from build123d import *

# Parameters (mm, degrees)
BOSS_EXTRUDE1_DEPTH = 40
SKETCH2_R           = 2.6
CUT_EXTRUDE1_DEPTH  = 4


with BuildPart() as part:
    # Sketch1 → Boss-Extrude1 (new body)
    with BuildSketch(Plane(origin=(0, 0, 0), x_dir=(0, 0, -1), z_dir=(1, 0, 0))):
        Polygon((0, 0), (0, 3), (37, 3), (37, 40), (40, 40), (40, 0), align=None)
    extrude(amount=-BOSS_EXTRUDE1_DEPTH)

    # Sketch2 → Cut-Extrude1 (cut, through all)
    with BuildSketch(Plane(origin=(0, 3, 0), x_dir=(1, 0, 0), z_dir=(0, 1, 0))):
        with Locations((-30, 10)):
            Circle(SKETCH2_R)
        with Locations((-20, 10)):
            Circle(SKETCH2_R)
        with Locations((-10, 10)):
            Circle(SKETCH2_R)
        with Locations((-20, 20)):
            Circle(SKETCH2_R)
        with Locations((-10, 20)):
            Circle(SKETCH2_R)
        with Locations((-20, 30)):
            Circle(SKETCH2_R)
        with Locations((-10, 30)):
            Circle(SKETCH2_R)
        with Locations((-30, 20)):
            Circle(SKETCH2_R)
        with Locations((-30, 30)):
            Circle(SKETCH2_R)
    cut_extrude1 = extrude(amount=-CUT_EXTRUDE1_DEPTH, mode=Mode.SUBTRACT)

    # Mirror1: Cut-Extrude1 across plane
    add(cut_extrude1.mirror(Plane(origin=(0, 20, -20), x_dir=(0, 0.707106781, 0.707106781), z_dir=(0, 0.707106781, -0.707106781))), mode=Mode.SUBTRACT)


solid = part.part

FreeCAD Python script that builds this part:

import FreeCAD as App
import Part
import Sketcher

V = App.Vector
Q = App.Units.Quantity

doc = App.newDocument("Part")
body = doc.addObject("PartDesign::Body", "Body")

# Sketch on YZ plane
sketch1 = body.newObject("Sketcher::SketchObject", "Sketch")
sketch1.AttachmentSupport = (doc.getObject("YZ_Plane"), [""])
sketch1.MapMode = "FlatFace"
sketch1.addGeometry([
    Part.LineSegment(V(3, 0, 0), V(0, 0, 0)),  # 0
    Part.LineSegment(V(0, 0, 0), V(0, -40, 0)),  # 1
    Part.LineSegment(V(0, -40, 0), V(40, -40, 0)),  # 2
    Part.LineSegment(V(40, -40, 0), V(40, -37, 0)),  # 3
    Part.LineSegment(V(40, -37, 0), V(3, -37, 0)),  # 4
    Part.LineSegment(V(3, -37, 0), V(3, 0, 0)),  # 5
], False)
sketch1.addConstraint([
    Sketcher.Constraint("Coincident", 0, 2, 1, 1),
    Sketcher.Constraint("Coincident", 1, 2, 2, 1),
    Sketcher.Constraint("Coincident", 2, 2, 3, 1),
    Sketcher.Constraint("Coincident", 3, 2, 4, 1),
    Sketcher.Constraint("Coincident", 4, 2, 5, 1),
    Sketcher.Constraint("Coincident", 5, 2, 0, 1),
    Sketcher.Constraint("Horizontal", 0),
    Sketcher.Constraint("Vertical", 1),
    Sketcher.Constraint("Horizontal", 2),
    Sketcher.Constraint("Vertical", 3),
    Sketcher.Constraint("Horizontal", 4),
    Sketcher.Constraint("Vertical", 5),
    Sketcher.Constraint("Coincident", 0, 2, -1, 1),
    Sketcher.Constraint("Equal", 2, 1),
    Sketcher.Constraint("Equal", 0, 3),
    Sketcher.Constraint("DistanceX", 0, 2, 0, 1, Q("3 mm")),
    Sketcher.Constraint("DistanceX", 2, 1, 2, 2, Q("40 mm")),
])
pad1 = body.newObject("PartDesign::Pad", "Pad")
pad1.Profile = sketch1
pad1.Length = 40
pad1.Reversed = True

# Sketch on XZ plane
sketch2 = body.newObject("Sketcher::SketchObject", "Sketch001")
sketch2.AttachmentSupport = (doc.getObject("XZ_Plane"), [""])
sketch2.MapMode = "FlatFace"
sketch2.AttachmentOffset = App.Placement(V(0, 0, -3), App.Rotation())
sketch2.addGeometry([
    Part.Circle(V(-30, -10, 0), V(0, 0, 1), 2.6),  # 0
    Part.Circle(V(-20, -10, 0), V(0, 0, 1), 2.6),  # 1
    Part.Circle(V(-10, -10, 0), V(0, 0, 1), 2.6),  # 2
    Part.Circle(V(-20, -20, 0), V(0, 0, 1), 2.6),  # 3
    Part.Circle(V(-10, -20, 0), V(0, 0, 1), 2.6),  # 4
    Part.Circle(V(-20, -30, 0), V(0, 0, 1), 2.6),  # 5
    Part.Circle(V(-10, -30, 0), V(0, 0, 1), 2.6),  # 6
    Part.Circle(V(-30, -20, 0), V(0, 0, 1), 2.6),  # 7
    Part.Circle(V(-30, -30, 0), V(0, 0, 1), 2.6),  # 8
], False)
sketch2.addConstraint([
    Sketcher.Constraint("Equal", 0, 1),
    Sketcher.Constraint("Equal", 1, 2),
    Sketcher.Constraint("Equal", 2, 3),
    Sketcher.Constraint("Equal", 3, 4),
    Sketcher.Constraint("Equal", 4, 5),
    Sketcher.Constraint("Equal", 5, 6),
    Sketcher.Constraint("Equal", 6, 7),
    Sketcher.Constraint("Equal", 7, 8),
    Sketcher.Constraint("Horizontal", 0, 3, 1, 3),
    Sketcher.Constraint("Horizontal", 1, 3, 2, 3),
    Sketcher.Constraint("Horizontal", 3, 3, 4, 3),
    Sketcher.Constraint("Horizontal", 5, 3, 6, 3),
    Sketcher.Constraint("Horizontal", 4, 3, 7, 3),
    Sketcher.Constraint("Horizontal", 6, 3, 8, 3),
    Sketcher.Constraint("Vertical", 1, 3, 3, 3),
    Sketcher.Constraint("Vertical", 2, 3, 4, 3),
    Sketcher.Constraint("Vertical", 3, 3, 5, 3),
    Sketcher.Constraint("Vertical", 4, 3, 6, 3),
    Sketcher.Constraint("Vertical", 0, 3, 7, 3),
    Sketcher.Constraint("Vertical", 7, 3, 8, 3),
    Sketcher.Constraint("Diameter", 0, Q("5.2 mm")),
    Sketcher.Constraint("DistanceX", 0, 3, -1, 1, Q("30 mm")),
    Sketcher.Constraint("DistanceY", 0, 3, -1, 1, Q("10 mm")),
    Sketcher.Constraint("DistanceX", 1, 3, -1, 1, Q("20 mm")),
    Sketcher.Constraint("DistanceX", 2, 3, -1, 1, Q("10 mm")),
    Sketcher.Constraint("DistanceY", 3, 3, -1, 1, Q("20 mm")),
    Sketcher.Constraint("DistanceY", 5, 3, -1, 1, Q("30 mm")),
])
pocket1 = body.newObject("PartDesign::Pocket", "Pocket")
pocket1.Profile = sketch2
pocket1.Type = "ThroughAll"
pocket1.Reversed = True
doc.recompute()

datumplane = body.newObject("PartDesign::Plane", "DatumPlane")
datumplane.Placement = App.Placement(V(0, 20, -20), App.Rotation(V(0, -0.707106781, -0.707106781), V(-1, 0, 0), V(0, 0.707106781, -0.707106781), "ZXY"))
mirrored = body.newObject("PartDesign::Mirrored", "Mirrored")
mirrored.Originals = [pocket1]
mirrored.MirrorPlane = (datumplane, [""])
body.Tip = mirrored

doc.recompute()
